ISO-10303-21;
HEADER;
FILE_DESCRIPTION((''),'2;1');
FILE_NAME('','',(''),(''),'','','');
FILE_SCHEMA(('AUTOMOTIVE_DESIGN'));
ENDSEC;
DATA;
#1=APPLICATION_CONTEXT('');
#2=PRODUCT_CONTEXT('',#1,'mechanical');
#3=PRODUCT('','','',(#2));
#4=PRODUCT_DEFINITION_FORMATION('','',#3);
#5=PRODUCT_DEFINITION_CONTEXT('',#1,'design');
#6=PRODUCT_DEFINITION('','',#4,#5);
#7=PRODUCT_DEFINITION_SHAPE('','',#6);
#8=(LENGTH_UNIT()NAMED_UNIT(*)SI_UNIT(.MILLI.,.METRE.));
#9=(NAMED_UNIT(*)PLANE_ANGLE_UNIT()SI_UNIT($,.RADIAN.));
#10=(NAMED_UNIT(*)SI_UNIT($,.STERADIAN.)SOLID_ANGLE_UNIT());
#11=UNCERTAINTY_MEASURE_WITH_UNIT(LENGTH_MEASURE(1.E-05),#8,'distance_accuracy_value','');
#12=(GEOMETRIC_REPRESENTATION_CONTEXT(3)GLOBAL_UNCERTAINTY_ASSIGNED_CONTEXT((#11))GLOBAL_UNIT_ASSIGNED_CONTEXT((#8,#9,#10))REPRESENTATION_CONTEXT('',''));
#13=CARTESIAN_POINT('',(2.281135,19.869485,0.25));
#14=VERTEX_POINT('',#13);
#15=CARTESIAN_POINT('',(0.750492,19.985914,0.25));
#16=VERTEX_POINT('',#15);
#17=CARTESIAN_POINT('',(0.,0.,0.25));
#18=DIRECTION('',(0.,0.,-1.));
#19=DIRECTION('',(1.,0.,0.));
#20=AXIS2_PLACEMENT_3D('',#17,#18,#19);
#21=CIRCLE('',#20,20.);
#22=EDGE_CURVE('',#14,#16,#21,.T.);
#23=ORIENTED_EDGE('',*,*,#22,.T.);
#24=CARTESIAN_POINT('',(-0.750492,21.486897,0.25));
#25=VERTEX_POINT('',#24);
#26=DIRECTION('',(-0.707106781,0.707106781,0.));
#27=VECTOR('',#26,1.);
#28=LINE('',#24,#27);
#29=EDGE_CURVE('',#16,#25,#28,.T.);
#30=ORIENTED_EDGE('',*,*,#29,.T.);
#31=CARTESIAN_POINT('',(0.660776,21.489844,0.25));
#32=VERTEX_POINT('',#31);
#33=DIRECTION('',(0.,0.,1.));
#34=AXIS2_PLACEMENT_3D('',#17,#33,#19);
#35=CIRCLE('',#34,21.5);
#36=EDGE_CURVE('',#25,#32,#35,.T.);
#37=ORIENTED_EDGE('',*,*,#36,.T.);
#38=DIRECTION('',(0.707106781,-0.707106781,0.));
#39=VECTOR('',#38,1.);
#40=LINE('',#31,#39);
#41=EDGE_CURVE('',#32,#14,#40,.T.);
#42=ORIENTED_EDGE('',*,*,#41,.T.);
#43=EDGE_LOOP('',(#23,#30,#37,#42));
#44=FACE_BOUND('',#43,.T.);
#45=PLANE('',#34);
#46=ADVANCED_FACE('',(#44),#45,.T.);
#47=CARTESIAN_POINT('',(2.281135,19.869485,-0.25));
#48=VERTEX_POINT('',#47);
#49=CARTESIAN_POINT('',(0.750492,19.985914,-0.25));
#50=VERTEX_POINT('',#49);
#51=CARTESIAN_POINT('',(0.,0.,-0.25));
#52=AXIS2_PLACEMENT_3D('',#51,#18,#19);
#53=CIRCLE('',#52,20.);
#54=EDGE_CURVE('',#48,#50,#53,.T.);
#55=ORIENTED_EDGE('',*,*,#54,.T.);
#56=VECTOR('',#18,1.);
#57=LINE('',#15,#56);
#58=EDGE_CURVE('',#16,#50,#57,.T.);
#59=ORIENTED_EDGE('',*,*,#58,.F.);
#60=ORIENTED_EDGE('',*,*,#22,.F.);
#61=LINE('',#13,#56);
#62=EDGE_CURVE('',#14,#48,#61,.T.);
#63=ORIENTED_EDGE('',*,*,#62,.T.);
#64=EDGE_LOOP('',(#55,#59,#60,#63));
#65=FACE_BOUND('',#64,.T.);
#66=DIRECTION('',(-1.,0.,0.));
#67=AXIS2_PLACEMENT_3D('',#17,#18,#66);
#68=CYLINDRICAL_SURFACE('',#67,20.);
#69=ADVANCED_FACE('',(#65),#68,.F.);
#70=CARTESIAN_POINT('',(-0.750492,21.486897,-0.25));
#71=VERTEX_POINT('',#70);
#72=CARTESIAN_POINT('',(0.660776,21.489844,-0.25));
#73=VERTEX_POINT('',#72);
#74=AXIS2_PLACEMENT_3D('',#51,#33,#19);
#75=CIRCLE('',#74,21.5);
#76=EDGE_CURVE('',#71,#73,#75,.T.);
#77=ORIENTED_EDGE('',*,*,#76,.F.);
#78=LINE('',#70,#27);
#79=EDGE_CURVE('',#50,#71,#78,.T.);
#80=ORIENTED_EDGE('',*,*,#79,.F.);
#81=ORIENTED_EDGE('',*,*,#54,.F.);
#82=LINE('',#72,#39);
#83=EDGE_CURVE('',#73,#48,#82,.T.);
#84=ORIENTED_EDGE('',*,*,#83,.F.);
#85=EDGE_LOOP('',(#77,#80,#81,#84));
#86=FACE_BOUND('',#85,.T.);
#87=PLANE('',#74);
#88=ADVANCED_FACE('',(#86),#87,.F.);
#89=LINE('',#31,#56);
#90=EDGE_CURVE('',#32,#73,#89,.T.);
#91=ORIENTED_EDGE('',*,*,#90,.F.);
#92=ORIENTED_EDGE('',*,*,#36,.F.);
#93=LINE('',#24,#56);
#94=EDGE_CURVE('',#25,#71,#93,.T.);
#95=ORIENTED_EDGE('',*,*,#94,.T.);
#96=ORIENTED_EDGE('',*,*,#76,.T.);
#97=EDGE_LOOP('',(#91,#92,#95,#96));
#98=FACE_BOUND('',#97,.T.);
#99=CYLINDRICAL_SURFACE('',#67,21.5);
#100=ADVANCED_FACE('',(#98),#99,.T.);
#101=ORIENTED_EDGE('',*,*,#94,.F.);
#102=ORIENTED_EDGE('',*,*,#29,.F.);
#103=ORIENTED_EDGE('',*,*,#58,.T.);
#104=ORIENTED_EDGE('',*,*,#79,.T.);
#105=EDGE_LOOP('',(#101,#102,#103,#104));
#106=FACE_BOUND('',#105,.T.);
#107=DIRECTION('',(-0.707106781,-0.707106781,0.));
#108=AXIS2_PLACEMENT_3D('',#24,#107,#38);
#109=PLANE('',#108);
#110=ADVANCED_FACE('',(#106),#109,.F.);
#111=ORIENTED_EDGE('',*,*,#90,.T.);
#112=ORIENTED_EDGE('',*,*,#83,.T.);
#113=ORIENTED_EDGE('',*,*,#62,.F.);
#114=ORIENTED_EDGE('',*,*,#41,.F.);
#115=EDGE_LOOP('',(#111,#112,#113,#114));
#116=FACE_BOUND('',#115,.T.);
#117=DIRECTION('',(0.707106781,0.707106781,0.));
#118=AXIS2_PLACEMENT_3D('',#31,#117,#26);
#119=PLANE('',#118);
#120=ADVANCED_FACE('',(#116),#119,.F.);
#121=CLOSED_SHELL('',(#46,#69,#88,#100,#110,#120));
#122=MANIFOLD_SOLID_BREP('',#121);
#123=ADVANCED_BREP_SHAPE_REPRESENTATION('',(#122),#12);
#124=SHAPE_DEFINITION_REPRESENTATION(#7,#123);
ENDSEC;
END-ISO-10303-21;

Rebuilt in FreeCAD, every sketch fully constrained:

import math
import FreeCAD as App
import Part
import Sketcher
Q = App.Units.Quantity

doc = App.newDocument("Part")
params = doc.addObject("Spreadsheet::Sheet", "Params")
for row, (alias, value) in enumerate([
    ("sketch1_radius", "20 mm"),
    ("sketch1_radius2", "21.5 mm"),
    ("pad1_length", "0.5 mm"),
], start=1):
    params.set(f"A{row}", alias)
    params.set(f"B{row}", "=" + value)
    params.setAlias(f"B{row}", alias)

body = doc.addObject("PartDesign::Body", "Body")

sketch1 = doc.addObject("Sketcher::SketchObject", "Sketch")
body.addObject(sketch1)
sketch1.AttachmentSupport = (doc.XY_Plane, [""])
sketch1.MapMode = "FlatFace"
sketch1.addGeometry([
    Part.LineSegment(App.Vector(0.660776, 21.489844, 0), App.Vector(2.281135, 19.869485, 0)),
    Part.ArcOfCircle(Part.Circle(App.Vector(0, 0, 0), App.Vector(0, 0, 1), 20), math.radians(87.849495), math.radians(443.450778)),
    Part.LineSegment(App.Vector(0.750492, 19.985914, 0), App.Vector(-0.750492, 21.486897, 0)),
    Part.ArcOfCircle(Part.Circle(App.Vector(0, 0, 0), App.Vector(0, 0, 1), 21.5), math.radians(92.000407), math.radians(448.238808)),
], False)
sketch1.addConstraint([
    Sketcher.Constraint("Coincident", 0, 2, 1, 2),
    Sketcher.Constraint("Coincident", 1, 1, 2, 1),
    Sketcher.Constraint("Coincident", 2, 2, 3, 1),
    Sketcher.Constraint("Coincident", 3, 2, 0, 1),
    Sketcher.Constraint("Coincident", 1, 3, -1, 1),
    Sketcher.Constraint("Coincident", 3, 3, -1, 1),
    Sketcher.Constraint("Parallel", 0, 2),
    Sketcher.Constraint("Radius", 1, 20.0),
    Sketcher.Constraint("Radius", 3, 21.5),
    Sketcher.Constraint("Angle", 0, Q("-45 deg")),
    Sketcher.Constraint("Distance", 2, 2.122711),
    Sketcher.Constraint("DistanceY", 0, 2, 1, 1, 0.116429),
])
sketch1.setExpression("Constraints[7]", "Params.sketch1_radius")
sketch1.setExpression("Constraints[8]", "Params.sketch1_radius2")
pad1 = doc.addObject("PartDesign::Pad", "Pad")
body.addObject(pad1)
pad1.Profile = sketch1
pad1.setExpression("Length", "Params.pad1_length")
pad1.Midplane = True

doc.recompute()
